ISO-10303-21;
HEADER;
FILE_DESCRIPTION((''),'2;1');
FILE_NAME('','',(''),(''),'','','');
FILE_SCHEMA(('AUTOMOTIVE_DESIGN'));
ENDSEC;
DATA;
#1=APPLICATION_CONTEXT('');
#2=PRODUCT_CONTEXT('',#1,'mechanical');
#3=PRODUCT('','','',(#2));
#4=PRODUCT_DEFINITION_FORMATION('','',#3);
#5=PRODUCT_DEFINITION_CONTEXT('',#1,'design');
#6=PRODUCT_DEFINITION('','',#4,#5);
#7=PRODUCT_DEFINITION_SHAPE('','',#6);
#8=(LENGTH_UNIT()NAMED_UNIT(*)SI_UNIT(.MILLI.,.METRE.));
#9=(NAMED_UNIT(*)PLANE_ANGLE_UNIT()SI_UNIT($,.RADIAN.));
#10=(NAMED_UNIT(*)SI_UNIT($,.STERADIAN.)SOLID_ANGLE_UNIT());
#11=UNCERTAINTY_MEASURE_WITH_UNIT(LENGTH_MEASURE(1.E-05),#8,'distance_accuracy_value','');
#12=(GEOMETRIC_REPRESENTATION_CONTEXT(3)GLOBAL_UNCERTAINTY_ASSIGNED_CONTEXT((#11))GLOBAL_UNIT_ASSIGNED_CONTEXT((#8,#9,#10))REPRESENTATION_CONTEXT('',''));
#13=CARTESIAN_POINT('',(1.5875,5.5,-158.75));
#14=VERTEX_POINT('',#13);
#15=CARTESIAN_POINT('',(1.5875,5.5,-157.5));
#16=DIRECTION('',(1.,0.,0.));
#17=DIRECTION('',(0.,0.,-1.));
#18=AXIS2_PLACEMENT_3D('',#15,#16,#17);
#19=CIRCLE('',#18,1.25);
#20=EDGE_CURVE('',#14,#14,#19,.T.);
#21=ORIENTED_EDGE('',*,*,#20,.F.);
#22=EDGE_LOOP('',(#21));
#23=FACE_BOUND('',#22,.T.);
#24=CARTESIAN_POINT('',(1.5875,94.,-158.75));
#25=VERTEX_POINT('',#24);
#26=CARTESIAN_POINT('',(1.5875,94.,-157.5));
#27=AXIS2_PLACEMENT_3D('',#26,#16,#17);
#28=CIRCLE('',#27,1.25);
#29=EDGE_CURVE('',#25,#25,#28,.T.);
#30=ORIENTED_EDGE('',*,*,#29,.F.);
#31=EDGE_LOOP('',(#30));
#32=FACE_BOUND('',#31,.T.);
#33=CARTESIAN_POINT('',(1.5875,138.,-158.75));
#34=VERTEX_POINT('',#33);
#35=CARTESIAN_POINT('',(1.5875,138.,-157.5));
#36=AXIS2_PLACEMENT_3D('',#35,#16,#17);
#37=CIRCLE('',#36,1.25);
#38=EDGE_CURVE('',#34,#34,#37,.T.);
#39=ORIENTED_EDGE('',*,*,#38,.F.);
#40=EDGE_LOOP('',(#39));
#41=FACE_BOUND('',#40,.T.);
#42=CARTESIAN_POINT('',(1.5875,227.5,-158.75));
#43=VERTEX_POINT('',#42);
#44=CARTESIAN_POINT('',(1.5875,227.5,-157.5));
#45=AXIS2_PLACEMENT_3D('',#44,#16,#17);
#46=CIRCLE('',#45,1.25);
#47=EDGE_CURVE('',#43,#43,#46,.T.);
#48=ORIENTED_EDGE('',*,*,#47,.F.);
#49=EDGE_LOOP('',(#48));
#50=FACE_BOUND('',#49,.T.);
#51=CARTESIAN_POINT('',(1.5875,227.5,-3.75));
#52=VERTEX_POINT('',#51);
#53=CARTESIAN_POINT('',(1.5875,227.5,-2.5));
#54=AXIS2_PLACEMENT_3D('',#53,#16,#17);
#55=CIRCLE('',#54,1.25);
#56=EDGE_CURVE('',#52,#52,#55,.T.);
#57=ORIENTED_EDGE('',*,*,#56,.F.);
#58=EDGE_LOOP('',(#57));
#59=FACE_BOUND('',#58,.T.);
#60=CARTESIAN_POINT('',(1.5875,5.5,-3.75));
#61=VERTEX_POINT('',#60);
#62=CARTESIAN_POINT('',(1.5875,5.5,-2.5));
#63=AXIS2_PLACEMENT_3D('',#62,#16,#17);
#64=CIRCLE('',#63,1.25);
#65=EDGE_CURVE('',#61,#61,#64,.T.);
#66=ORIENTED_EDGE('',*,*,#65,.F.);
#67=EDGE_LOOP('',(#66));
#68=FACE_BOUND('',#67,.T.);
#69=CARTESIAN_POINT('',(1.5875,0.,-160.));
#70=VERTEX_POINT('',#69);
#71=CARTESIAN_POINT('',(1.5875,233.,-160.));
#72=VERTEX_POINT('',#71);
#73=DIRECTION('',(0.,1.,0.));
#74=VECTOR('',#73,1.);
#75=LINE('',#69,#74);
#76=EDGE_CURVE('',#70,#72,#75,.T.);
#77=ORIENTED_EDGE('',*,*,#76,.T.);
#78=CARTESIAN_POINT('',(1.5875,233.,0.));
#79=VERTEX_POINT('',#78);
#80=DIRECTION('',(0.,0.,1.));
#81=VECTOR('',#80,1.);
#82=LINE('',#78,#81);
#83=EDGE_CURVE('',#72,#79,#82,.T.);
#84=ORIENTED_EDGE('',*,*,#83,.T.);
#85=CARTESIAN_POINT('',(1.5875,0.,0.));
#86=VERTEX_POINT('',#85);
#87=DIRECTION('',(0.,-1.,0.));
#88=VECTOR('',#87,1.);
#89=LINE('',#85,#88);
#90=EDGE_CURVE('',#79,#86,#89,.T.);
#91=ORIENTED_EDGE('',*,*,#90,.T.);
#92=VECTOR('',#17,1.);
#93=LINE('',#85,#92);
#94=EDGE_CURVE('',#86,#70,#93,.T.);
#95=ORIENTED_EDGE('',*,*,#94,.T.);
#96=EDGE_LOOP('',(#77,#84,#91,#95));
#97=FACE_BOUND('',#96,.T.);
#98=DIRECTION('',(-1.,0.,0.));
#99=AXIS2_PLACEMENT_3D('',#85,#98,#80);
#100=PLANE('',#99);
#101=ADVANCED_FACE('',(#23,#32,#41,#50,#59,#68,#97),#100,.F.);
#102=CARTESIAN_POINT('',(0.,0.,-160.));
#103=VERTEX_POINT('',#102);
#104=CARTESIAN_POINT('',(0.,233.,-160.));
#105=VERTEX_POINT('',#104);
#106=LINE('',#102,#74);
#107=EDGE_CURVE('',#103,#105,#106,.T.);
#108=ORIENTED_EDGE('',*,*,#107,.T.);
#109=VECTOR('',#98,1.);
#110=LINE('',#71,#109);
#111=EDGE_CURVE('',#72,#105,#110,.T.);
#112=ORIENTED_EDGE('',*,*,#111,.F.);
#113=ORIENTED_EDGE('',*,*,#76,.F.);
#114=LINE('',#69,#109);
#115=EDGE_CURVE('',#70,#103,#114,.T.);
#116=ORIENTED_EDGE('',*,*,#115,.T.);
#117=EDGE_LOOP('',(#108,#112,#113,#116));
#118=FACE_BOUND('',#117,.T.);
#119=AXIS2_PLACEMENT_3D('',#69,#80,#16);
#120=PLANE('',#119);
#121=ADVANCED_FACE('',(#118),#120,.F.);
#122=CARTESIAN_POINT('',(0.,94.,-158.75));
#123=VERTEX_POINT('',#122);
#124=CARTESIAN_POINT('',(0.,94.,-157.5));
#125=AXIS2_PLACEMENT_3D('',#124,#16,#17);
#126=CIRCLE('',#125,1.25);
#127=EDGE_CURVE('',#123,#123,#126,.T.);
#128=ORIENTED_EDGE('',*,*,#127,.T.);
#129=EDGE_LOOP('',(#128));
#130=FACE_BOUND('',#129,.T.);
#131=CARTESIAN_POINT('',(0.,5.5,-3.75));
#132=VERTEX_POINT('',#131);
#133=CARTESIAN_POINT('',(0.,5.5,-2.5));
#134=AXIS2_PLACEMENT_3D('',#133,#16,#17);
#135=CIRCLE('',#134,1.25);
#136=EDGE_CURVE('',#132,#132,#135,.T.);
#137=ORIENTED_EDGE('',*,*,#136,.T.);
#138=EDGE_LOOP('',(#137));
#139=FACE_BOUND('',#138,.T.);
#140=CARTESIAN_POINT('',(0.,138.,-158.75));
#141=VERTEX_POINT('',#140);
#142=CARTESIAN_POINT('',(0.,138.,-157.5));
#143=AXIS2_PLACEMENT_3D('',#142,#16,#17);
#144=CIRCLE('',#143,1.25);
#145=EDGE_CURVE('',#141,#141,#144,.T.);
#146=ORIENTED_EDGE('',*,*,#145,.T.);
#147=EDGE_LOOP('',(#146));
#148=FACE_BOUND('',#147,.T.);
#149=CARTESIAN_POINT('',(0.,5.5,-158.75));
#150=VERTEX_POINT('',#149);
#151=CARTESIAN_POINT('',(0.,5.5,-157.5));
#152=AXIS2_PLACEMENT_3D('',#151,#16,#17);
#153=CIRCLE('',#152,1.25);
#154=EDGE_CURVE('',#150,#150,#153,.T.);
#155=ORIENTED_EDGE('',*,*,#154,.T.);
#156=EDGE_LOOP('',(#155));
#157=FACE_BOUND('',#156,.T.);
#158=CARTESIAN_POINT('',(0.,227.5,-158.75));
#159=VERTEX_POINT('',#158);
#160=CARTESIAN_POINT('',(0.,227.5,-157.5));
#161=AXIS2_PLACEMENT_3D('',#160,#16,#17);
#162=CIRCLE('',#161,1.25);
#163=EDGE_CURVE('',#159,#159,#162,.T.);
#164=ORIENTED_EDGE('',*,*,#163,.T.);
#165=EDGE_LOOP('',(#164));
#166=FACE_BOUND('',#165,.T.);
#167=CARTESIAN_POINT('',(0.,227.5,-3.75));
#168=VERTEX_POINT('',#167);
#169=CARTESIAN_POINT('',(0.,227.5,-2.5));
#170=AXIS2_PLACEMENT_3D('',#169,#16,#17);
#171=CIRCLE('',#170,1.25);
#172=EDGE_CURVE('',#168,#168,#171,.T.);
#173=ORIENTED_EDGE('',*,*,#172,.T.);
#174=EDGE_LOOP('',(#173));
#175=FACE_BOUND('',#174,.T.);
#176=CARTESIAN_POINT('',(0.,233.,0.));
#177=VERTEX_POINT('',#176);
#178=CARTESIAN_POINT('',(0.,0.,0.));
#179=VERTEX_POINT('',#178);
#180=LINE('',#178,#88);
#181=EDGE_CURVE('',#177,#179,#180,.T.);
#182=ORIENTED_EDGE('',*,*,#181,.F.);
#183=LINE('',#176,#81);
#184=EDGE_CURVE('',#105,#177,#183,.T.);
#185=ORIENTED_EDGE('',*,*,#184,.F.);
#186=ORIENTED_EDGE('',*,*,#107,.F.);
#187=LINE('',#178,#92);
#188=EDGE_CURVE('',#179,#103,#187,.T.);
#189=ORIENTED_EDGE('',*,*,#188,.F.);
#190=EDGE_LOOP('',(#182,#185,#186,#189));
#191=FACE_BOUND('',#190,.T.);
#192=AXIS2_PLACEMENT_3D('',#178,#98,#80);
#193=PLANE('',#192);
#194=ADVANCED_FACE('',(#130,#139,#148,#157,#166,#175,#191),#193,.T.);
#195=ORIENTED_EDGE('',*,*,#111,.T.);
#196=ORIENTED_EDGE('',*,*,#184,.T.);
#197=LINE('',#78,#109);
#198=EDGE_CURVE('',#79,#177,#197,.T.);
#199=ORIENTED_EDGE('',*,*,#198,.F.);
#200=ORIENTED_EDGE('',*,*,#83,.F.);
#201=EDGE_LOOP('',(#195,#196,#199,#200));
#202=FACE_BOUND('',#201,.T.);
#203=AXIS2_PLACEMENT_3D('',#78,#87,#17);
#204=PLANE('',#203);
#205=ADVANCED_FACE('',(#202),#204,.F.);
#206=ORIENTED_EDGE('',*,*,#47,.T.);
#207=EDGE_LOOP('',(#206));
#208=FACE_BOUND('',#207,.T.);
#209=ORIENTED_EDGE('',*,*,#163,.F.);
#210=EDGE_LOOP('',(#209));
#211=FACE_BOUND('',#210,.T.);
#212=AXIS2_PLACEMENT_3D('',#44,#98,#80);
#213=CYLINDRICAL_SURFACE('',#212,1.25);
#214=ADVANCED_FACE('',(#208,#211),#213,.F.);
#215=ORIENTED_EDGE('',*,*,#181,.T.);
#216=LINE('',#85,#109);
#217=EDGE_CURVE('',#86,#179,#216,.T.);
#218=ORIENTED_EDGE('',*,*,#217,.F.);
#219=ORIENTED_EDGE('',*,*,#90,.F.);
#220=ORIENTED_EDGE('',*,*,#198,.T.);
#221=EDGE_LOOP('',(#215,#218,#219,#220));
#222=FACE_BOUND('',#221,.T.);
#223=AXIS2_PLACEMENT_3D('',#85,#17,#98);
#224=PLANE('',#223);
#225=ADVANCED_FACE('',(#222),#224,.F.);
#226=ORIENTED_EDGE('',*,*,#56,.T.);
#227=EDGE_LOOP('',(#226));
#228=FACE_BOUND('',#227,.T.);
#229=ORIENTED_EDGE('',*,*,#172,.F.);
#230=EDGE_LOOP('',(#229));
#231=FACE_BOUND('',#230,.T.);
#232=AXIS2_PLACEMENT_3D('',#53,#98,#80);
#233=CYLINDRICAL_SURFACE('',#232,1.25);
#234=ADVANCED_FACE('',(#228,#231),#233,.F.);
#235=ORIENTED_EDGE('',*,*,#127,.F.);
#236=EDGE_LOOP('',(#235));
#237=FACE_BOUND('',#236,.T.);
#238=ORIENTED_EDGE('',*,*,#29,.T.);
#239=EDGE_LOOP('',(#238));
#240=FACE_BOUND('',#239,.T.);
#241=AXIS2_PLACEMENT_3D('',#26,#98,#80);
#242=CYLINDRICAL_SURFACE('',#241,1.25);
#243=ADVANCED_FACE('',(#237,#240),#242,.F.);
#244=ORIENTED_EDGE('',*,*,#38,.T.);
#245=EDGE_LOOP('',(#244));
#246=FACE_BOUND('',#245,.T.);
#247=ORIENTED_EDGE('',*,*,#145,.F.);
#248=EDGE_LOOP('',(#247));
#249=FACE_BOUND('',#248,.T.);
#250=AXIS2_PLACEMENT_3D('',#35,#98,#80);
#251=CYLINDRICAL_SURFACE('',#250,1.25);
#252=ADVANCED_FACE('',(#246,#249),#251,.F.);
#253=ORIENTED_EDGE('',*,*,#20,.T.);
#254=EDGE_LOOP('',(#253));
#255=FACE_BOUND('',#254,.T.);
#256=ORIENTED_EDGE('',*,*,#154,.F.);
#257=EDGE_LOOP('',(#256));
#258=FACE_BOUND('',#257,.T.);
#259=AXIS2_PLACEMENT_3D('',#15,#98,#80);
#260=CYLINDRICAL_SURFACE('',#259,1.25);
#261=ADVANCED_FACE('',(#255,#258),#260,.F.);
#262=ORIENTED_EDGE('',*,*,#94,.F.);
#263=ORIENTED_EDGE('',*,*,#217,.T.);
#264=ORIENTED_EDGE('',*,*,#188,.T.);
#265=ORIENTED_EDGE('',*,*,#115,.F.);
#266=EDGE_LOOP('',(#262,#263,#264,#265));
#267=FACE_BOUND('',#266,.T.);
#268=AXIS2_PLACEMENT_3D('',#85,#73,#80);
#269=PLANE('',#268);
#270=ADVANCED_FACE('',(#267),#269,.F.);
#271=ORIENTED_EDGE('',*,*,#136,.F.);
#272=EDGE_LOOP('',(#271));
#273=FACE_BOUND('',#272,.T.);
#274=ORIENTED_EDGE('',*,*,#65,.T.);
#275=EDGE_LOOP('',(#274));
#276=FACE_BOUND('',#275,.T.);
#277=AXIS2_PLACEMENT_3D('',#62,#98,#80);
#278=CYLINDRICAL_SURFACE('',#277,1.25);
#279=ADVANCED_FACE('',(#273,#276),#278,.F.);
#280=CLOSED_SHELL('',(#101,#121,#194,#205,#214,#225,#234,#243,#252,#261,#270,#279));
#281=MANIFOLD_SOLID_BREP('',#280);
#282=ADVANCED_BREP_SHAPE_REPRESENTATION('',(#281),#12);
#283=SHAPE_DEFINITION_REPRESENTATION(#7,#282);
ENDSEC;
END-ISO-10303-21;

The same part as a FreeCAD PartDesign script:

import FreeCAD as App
import Part
import Sketcher
Q = App.Units.Quantity


def add_polygon(sketch, points):
    """Adds a closed chain of lines whose ends are joined by coincident constraints."""
    first, n = sketch.GeometryCount, len(points)
    for a, b in zip(points, points[1:] + points[:1]):
        sketch.addGeometry(Part.LineSegment(App.Vector(*a, 0), App.Vector(*b, 0)), False)
    for i in range(n):
        sketch.addConstraint(Sketcher.Constraint("Coincident", first + i, 2, first + (i + 1) % n, 1))

doc = App.newDocument("Part")
body = doc.addObject("PartDesign::Body", "Body")

# Sketch on YZ plane
sketch1 = doc.addObject("Sketcher::SketchObject", "Sketch")
body.addObject(sketch1)
sketch1.AttachmentSupport = (doc.YZ_Plane, [""])
sketch1.MapMode = "FlatFace"
add_polygon(sketch1, [(233, 0), (0, 0), (0, -160), (233, -160)])  # lines 0-3
sketch1.addGeometry(Part.Circle(App.Vector(5.5, -2.5, 0), App.Vector(0, 0, 1), 1.2), False)  # 4
sketch1.addGeometry(Part.Circle(App.Vector(5.5, -157.5, 0), App.Vector(0, 0, 1), 1.2), False)  # 5
sketch1.addGeometry(Part.Circle(App.Vector(94, -157.5, 0), App.Vector(0, 0, 1), 1.2), False)  # 6
sketch1.addGeometry(Part.Circle(App.Vector(227.5, -2.5, 0), App.Vector(0, 0, 1), 1.2), False)  # 7
sketch1.addGeometry(Part.Circle(App.Vector(138, -157.5, 0), App.Vector(0, 0, 1), 1.2), False)  # 8
sketch1.addGeometry(Part.Circle(App.Vector(227.5, -157.5, 0), App.Vector(0, 0, 1), 1.2), False)  # 9
sketch1.addConstraint(Sketcher.Constraint("Horizontal", 0))
sketch1.addConstraint(Sketcher.Constraint("Vertical", 1))
sketch1.addConstraint(Sketcher.Constraint("Horizontal", 2))
sketch1.addConstraint(Sketcher.Constraint("Vertical", 3))
sketch1.addConstraint(Sketcher.Constraint("Coincident", 0, 2, -1, 1))
sketch1.addConstraint(Sketcher.Constraint("Equal", 4, 5))
sketch1.addConstraint(Sketcher.Constraint("Equal", 5, 6))
sketch1.addConstraint(Sketcher.Constraint("Equal", 6, 7))
sketch1.addConstraint(Sketcher.Constraint("Equal", 7, 8))
sketch1.addConstraint(Sketcher.Constraint("Equal", 8, 9))
sketch1.addConstraint(Sketcher.Constraint("Horizontal", 5, 3, 6, 3))
sketch1.addConstraint(Sketcher.Constraint("Horizontal", 4, 3, 7, 3))
sketch1.addConstraint(Sketcher.Constraint("Horizontal", 6, 3, 8, 3))
sketch1.addConstraint(Sketcher.Constraint("Horizontal", 8, 3, 9, 3))
sketch1.addConstraint(Sketcher.Constraint("Vertical", 4, 3, 5, 3))
sketch1.addConstraint(Sketcher.Constraint("Vertical", 7, 3, 9, 3))
sketch1.addConstraint(Sketcher.Constraint("Diameter", 4, Q("2.5 mm")))
sketch1.addConstraint(Sketcher.Constraint("DistanceX", 0, 2, 0, 1, Q("233 mm")))
sketch1.addConstraint(Sketcher.Constraint("DistanceY", 1, 2, 1, 1, Q("160 mm")))
sketch1.addConstraint(Sketcher.Constraint("DistanceX", -1, 1, 6, 3, Q("94 mm")))
sketch1.addConstraint(Sketcher.Constraint("DistanceX", -1, 1, 8, 3, Q("138 mm")))
sketch1.addConstraint(Sketcher.Constraint("DistanceY", 5, 3, 4, 3, Q("155 mm")))
sketch1.addConstraint(Sketcher.Constraint("DistanceX", 4, 3, 7, 3, Q("222 mm")))
sketch1.addConstraint(Sketcher.Constraint("DistanceX", -1, 1, 4, 3, Q("5.5 mm")))
sketch1.addConstraint(Sketcher.Constraint("DistanceY", 4, 3, -1, 1, Q("2.5 mm")))
pad1 = doc.addObject("PartDesign::Pad", "Pad")
body.addObject(pad1)
pad1.Profile = sketch1
pad1.Length = 1.5875

doc.recompute()
